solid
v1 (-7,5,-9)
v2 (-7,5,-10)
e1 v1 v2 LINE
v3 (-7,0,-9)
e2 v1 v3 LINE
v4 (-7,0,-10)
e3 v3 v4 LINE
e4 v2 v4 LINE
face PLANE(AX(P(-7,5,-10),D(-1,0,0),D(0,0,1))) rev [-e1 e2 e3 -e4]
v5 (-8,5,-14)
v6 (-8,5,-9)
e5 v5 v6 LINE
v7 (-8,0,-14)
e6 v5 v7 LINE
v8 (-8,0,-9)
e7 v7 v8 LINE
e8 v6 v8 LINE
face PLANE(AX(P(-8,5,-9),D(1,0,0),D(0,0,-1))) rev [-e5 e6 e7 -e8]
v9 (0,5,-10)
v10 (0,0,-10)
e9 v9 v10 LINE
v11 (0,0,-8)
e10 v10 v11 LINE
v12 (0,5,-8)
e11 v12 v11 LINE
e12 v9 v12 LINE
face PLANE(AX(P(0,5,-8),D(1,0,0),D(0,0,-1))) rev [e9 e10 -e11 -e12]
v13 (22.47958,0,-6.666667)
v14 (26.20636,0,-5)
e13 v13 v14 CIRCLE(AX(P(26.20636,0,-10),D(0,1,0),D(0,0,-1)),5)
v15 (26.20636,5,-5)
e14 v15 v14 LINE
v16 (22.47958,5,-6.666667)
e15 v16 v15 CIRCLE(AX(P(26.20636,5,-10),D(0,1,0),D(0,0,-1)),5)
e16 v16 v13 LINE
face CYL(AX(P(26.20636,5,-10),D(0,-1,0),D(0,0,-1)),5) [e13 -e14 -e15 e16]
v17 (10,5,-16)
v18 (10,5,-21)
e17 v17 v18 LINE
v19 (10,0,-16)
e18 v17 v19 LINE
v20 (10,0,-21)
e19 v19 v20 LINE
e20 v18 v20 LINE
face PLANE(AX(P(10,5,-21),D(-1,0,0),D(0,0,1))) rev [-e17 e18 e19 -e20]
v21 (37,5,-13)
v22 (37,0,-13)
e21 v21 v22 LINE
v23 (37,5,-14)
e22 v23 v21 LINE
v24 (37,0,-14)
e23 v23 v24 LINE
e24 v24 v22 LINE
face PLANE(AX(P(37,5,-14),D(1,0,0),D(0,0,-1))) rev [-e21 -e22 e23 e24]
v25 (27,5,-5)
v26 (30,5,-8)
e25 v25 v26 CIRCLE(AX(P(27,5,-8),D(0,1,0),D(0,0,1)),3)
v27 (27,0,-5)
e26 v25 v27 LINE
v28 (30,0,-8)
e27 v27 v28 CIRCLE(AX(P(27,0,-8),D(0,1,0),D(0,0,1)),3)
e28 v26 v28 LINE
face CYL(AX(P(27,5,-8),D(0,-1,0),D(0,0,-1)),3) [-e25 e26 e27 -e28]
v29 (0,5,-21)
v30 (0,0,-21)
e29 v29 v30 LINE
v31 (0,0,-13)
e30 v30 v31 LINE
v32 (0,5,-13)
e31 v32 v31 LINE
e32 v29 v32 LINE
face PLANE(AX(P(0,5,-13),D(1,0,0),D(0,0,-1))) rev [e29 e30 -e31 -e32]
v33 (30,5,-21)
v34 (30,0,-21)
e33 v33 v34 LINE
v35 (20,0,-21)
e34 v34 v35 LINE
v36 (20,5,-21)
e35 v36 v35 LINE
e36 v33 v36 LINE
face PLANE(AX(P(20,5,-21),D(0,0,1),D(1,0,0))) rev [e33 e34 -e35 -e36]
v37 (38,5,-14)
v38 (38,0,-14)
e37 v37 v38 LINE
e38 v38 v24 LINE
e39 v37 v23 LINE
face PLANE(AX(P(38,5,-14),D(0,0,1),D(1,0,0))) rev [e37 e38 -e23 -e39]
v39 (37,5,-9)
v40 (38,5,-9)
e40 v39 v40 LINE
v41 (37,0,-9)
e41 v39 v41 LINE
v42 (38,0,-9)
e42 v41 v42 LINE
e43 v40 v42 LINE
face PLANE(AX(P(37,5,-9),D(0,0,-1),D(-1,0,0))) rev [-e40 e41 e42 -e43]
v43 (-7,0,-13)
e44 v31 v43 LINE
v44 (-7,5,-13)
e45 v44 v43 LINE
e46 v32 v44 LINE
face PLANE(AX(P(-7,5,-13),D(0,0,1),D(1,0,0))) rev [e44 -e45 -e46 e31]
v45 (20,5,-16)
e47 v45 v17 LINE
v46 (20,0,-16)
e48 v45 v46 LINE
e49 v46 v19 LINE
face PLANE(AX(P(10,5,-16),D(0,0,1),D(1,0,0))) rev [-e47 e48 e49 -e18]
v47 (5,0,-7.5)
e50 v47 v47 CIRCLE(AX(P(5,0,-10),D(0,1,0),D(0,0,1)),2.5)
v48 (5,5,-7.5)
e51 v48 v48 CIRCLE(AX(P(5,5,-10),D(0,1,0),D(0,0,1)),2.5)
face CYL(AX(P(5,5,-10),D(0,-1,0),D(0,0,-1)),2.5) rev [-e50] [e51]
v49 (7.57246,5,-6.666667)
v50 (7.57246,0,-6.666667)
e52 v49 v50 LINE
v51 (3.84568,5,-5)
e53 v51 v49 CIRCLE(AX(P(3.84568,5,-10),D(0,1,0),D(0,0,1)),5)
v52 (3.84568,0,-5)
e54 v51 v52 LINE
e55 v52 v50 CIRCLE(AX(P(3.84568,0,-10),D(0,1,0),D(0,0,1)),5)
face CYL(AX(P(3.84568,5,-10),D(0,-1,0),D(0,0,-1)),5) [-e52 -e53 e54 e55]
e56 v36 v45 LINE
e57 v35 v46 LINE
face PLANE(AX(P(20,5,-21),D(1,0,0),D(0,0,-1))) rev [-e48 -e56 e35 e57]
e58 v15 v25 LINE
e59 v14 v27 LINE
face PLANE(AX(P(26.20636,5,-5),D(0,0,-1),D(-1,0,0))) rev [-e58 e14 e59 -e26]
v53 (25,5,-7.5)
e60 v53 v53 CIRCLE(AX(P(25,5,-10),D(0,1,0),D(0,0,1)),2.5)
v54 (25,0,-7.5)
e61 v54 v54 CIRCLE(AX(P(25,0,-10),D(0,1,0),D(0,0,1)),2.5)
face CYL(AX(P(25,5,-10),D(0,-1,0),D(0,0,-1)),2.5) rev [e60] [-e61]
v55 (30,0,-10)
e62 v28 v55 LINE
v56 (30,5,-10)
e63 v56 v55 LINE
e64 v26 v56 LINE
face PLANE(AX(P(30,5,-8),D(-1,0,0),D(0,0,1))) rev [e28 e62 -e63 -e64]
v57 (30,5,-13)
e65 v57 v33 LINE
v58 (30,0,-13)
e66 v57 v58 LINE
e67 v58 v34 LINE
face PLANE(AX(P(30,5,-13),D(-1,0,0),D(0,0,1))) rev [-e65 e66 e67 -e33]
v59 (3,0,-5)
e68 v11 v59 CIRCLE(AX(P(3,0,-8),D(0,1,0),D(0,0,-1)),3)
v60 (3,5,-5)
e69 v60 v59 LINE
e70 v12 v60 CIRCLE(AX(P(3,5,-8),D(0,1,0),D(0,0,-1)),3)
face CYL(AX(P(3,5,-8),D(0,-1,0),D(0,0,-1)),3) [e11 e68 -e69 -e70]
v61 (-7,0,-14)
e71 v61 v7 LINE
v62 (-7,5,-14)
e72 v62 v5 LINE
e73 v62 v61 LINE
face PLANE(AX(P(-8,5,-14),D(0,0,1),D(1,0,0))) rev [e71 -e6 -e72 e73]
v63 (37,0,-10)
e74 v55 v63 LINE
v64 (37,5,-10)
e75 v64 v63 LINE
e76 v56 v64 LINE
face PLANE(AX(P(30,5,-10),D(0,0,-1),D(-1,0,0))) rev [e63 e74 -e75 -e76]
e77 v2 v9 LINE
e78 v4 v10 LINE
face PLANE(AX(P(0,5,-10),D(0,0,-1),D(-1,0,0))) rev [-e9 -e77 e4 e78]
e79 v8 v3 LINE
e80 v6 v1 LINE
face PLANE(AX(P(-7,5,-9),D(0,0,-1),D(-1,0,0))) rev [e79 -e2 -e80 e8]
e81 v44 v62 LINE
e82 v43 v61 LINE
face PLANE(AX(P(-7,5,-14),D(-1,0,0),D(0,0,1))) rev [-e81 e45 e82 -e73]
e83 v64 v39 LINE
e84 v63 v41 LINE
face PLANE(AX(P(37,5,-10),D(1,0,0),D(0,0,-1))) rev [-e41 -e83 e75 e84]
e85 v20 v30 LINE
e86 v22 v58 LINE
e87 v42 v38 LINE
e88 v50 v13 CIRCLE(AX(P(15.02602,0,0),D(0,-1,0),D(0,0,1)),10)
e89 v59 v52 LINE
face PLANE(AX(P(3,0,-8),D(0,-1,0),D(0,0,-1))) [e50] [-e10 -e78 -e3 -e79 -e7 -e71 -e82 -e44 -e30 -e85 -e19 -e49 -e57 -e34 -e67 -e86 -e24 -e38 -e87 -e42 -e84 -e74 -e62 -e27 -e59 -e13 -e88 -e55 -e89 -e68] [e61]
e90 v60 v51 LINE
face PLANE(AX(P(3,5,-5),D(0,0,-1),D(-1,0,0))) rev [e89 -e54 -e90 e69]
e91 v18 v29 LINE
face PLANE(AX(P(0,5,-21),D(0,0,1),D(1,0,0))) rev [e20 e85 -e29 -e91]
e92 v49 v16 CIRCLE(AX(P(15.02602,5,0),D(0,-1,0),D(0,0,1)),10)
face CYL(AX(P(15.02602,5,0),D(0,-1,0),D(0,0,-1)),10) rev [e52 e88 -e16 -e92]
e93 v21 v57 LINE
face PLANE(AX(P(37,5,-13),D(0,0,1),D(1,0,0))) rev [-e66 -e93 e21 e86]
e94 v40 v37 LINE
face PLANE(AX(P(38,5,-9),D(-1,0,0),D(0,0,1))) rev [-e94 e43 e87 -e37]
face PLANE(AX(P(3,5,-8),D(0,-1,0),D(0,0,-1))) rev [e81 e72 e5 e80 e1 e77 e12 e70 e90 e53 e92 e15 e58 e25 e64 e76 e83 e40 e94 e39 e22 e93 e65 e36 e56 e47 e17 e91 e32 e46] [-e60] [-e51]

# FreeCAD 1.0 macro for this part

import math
import FreeCAD as App
import Part
import Sketcher

V = App.Vector
Q = App.Units.Quantity

doc = App.newDocument("Part")
params = doc.addObject("Spreadsheet::Sheet", "Params")
for row, (alias, value) in enumerate([
    ("sketch1_diameter", "5 mm"),
    ("sketch1_radius", "3 mm"),
    ("sketch1_radius2", "5 mm"),
    ("sketch1_radius3", "10 mm"),
    ("sketch1_width", "10 mm"),
    ("pad1_length", "5 mm"),
], start=1):
    params.set(f"A{row}", alias)
    params.set(f"B{row}", "=" + value)
    params.setAlias(f"B{row}", alias)

body = doc.addObject("PartDesign::Body", "Body")

# Sketch on XZ plane
sketch1 = body.newObject("Sketcher::SketchObject", "Sketch")
sketch1.AttachmentSupport = (doc.getObject("XZ_Plane"), [""])
sketch1.MapMode = "FlatFace"
sketch1.addGeometry(Part.LineSegment(V(30, -21, 0), V(20, -21, 0)), False)
sketch1.addGeometry(Part.LineSegment(V(20, -21, 0), V(20, -16, 0)), False)
sketch1.addGeometry(Part.LineSegment(V(20, -16, 0), V(10, -16, 0)), False)
sketch1.addGeometry(Part.LineSegment(V(10, -16, 0), V(10, -21, 0)), False)
sketch1.addGeometry(Part.LineSegment(V(10, -21, 0), V(0, -21, 0)), False)
sketch1.addGeometry(Part.LineSegment(V(0, -21, 0), V(0, -13, 0)), False)
sketch1.addGeometry(Part.LineSegment(V(0, -13, 0), V(-7, -13, 0)), False)
sketch1.addGeometry(Part.LineSegment(V(-7, -13, 0), V(-7, -14, 0)), False)
sketch1.addGeometry(Part.LineSegment(V(-7, -14, 0), V(-8, -14, 0)), False)
sketch1.addGeometry(Part.LineSegment(V(-8, -14, 0), V(-8, -9, 0)), False)
sketch1.addGeometry(Part.LineSegment(V(-8, -9, 0), V(-7, -9, 0)), False)
sketch1.addGeometry(Part.LineSegment(V(-7, -9, 0), V(-7, -10, 0)), False)
sketch1.addGeometry(Part.LineSegment(V(-7, -10, 0), V(0, -10, 0)), False)
sketch1.addGeometry(Part.LineSegment(V(0, -10, 0), V(0, -8, 0)), False)
sketch1.addGeometry(Part.ArcOfCircle(Part.Circle(V(3, -8, 0), V(0, 0, 1), 3), math.radians(90), math.radians(180)), False)
sketch1.addGeometry(Part.LineSegment(V(3, -5, 0), V(3.8, -5, 0)), False)
sketch1.addGeometry(Part.ArcOfCircle(Part.Circle(V(3.8, -10, 0), V(0, 0, 1), 5), math.radians(42), math.radians(90)), False)
sketch1.addGeometry(Part.ArcOfCircle(Part.Circle(V(15, 0, 0), V(0, 0, 1), 10), math.radians(-138), math.radians(-42)), False)
sketch1.addGeometry(Part.ArcOfCircle(Part.Circle(V(26.2, -10, 0), V(0, 0, 1), 5), math.radians(90), math.radians(138)), False)
sketch1.addGeometry(Part.LineSegment(V(26.2, -5, 0), V(27, -5, 0)), False)
sketch1.addGeometry(Part.ArcOfCircle(Part.Circle(V(27, -8, 0), V(0, 0, 1), 3), math.radians(0), math.radians(90)), False)
sketch1.addGeometry(Part.LineSegment(V(30, -8, 0), V(30, -10, 0)), False)
sketch1.addGeometry(Part.LineSegment(V(30, -10, 0), V(37, -10, 0)), False)
sketch1.addGeometry(Part.LineSegment(V(37, -10, 0), V(37, -9, 0)), False)
sketch1.addGeometry(Part.LineSegment(V(37, -9, 0), V(38, -9, 0)), False)
sketch1.addGeometry(Part.LineSegment(V(38, -9, 0), V(38, -14, 0)), False)
sketch1.addGeometry(Part.LineSegment(V(38, -14, 0), V(37, -14, 0)), False)
sketch1.addGeometry(Part.LineSegment(V(37, -14, 0), V(37, -13, 0)), False)
sketch1.addGeometry(Part.LineSegment(V(37, -13, 0), V(30, -13, 0)), False)
sketch1.addGeometry(Part.LineSegment(V(30, -13, 0), V(30, -21, 0)), False)
sketch1.addGeometry(Part.Circle(V(25, -10, 0), V(0, 0, 1), 2.5), False)
sketch1.addGeometry(Part.Circle(V(5, -10, 0), V(0, 0, 1), 2.5), False)
sketch1.addConstraint(Sketcher.Constraint("Coincident", 0, 2, 1, 1))
sketch1.addConstraint(Sketcher.Constraint("Coincident", 1, 2, 2, 1))
sketch1.addConstraint(Sketcher.Constraint("Coincident", 2, 2, 3, 1))
sketch1.addConstraint(Sketcher.Constraint("Coincident", 3, 2, 4, 1))
sketch1.addConstraint(Sketcher.Constraint("Coincident", 4, 2, 5, 1))
sketch1.addConstraint(Sketcher.Constraint("Coincident", 5, 2, 6, 1))
sketch1.addConstraint(Sketcher.Constraint("Coincident", 6, 2, 7, 1))
sketch1.addConstraint(Sketcher.Constraint("Coincident", 7, 2, 8, 1))
sketch1.addConstraint(Sketcher.Constraint("Coincident", 8, 2, 9, 1))
sketch1.addConstraint(Sketcher.Constraint("Coincident", 9, 2, 10, 1))
sketch1.addConstraint(Sketcher.Constraint("Coincident", 10, 2, 11, 1))
sketch1.addConstraint(Sketcher.Constraint("Coincident", 11, 2, 12, 1))
sketch1.addConstraint(Sketcher.Constraint("Coincident", 12, 2, 13, 1))
sketch1.addConstraint(Sketcher.Constraint("Tangent", 13, 2, 14, 2))
sketch1.addConstraint(Sketcher.Constraint("Tangent", 14, 1, 15, 1))
sketch1.addConstraint(Sketcher.Constraint("Tangent", 15, 2, 16, 2))
sketch1.addConstraint(Sketcher.Constraint("Tangent", 16, 1, 17, 1))
sketch1.addConstraint(Sketcher.Constraint("Tangent", 17, 2, 18, 2))
sketch1.addConstraint(Sketcher.Constraint("Tangent", 18, 1, 19, 1))
sketch1.addConstraint(Sketcher.Constraint("Tangent", 19, 2, 20, 2))
sketch1.addConstraint(Sketcher.Constraint("Tangent", 20, 1, 21, 1))
sketch1.addConstraint(Sketcher.Constraint("Coincident", 21, 2, 22, 1))
sketch1.addConstraint(Sketcher.Constraint("Coincident", 22, 2, 23, 1))
sketch1.addConstraint(Sketcher.Constraint("Coincident", 23, 2, 24, 1))
sketch1.addConstraint(Sketcher.Constraint("Coincident", 24, 2, 25, 1))
sketch1.addConstraint(Sketcher.Constraint("Coincident", 25, 2, 26, 1))
sketch1.addConstraint(Sketcher.Constraint("Coincident", 26, 2, 27, 1))
sketch1.addConstraint(Sketcher.Constraint("Coincident", 27, 2, 28, 1))
sketch1.addConstraint(Sketcher.Constraint("Coincident", 28, 2, 29, 1))
sketch1.addConstraint(Sketcher.Constraint("Coincident", 29, 2, 0, 1))
sketch1.addConstraint(Sketcher.Constraint("Horizontal", 0))
sketch1.addConstraint(Sketcher.Constraint("Vertical", 1))
sketch1.addConstraint(Sketcher.Constraint("Horizontal", 2))
sketch1.addConstraint(Sketcher.Constraint("Vertical", 3))
sketch1.addConstraint(Sketcher.Constraint("Horizontal", 4))
sketch1.addConstraint(Sketcher.Constraint("Vertical", 5))
sketch1.addConstraint(Sketcher.Constraint("Horizontal", 6))
sketch1.addConstraint(Sketcher.Constraint("Vertical", 7))
sketch1.addConstraint(Sketcher.Constraint("Horizontal", 8))
sketch1.addConstraint(Sketcher.Constraint("Vertical", 9))
sketch1.addConstraint(Sketcher.Constraint("Horizontal", 10))
sketch1.addConstraint(Sketcher.Constraint("Vertical", 11))
sketch1.addConstraint(Sketcher.Constraint("Horizontal", 12))
sketch1.addConstraint(Sketcher.Constraint("Vertical", 13))
sketch1.addConstraint(Sketcher.Constraint("Horizontal", 15))
sketch1.addConstraint(Sketcher.Constraint("Horizontal", 19))
sketch1.addConstraint(Sketcher.Constraint("Vertical", 21))
sketch1.addConstraint(Sketcher.Constraint("Horizontal", 22))
sketch1.addConstraint(Sketcher.Constraint("Vertical", 23))
sketch1.addConstraint(Sketcher.Constraint("Horizontal", 24))
sketch1.addConstraint(Sketcher.Constraint("Vertical", 25))
sketch1.addConstraint(Sketcher.Constraint("Horizontal", 26))
sketch1.addConstraint(Sketcher.Constraint("Vertical", 27))
sketch1.addConstraint(Sketcher.Constraint("Horizontal", 28))
sketch1.addConstraint(Sketcher.Constraint("Vertical", 29))
sketch1.addConstraint(Sketcher.Constraint("Equal", 16, 18))
sketch1.addConstraint(Sketcher.Constraint("Equal", 14, 20))
sketch1.addConstraint(Sketcher.Constraint("Equal", 30, 31))
sketch1.addConstraint(Sketcher.Constraint("PointOnObject", 17, 3, -1))
sketch1.addConstraint(Sketcher.Constraint("PointOnObject", 4, 2, -2))
sketch1.addConstraint(Sketcher.Constraint("PointOnObject", 12, 2, -2))
sketch1.addConstraint(Sketcher.Constraint("Horizontal", 16, 3, 18, 3))
sketch1.addConstraint(Sketcher.Constraint("Horizontal", 18, 3, 30, 3))
sketch1.addConstraint(Sketcher.Constraint("Horizontal", 30, 3, 31, 3))
sketch1.addConstraint(Sketcher.Constraint("Horizontal", 0, 2, 3, 2))
sketch1.addConstraint(Sketcher.Constraint("Horizontal", 31, 3, 11, 2))
sketch1.addConstraint(Sketcher.Constraint("Horizontal", 12, 2, 21, 2))
sketch1.addConstraint(Sketcher.Constraint("Horizontal", 10, 2, 23, 2))
sketch1.addConstraint(Sketcher.Constraint("Horizontal", 8, 2, 25, 2))
sketch1.addConstraint(Sketcher.Constraint("Horizontal", 6, 2, 27, 2))
sketch1.addConstraint(Sketcher.Constraint("Vertical", 7, 2, 10, 2))
sketch1.addConstraint(Sketcher.Constraint("Vertical", 23, 2, 26, 2))
sketch1.addConstraint(Sketcher.Constraint("Vertical", 21, 2, 28, 2))
sketch1.addConstraint(Sketcher.Constraint("Equal", 0, 2))
sketch1.addConstraint(Sketcher.Constraint("Equal", 2, 4))
sketch1.addConstraint(Sketcher.Constraint("Equal", 12, 22))
sketch1.addConstraint(Sketcher.Constraint("Equal", 10, 24))
sketch1.addConstraint(Sketcher.Constraint("Equal", 26, 7))
sketch1.addConstraint(Sketcher.Constraint("Equal", 3, 9))
sketch1.addConstraint(Sketcher.Constraint("Equal", 7, 11))
sketch1.addConstraint(Sketcher.Constraint("Diameter", 30, Q("5 mm")))
sketch1.addConstraint(Sketcher.Constraint("Radius", 14, Q("3 mm")))
sketch1.addConstraint(Sketcher.Constraint("Radius", 16, Q("5 mm")))
sketch1.addConstraint(Sketcher.Constraint("Radius", 17, Q("10 mm")))
sketch1.addConstraint(Sketcher.Constraint("DistanceX", 0, 2, 0, 1, Q("10 mm")))
sketch1.addConstraint(Sketcher.Constraint("DistanceX", 6, 2, 6, 1, Q("7 mm")))
sketch1.addConstraint(Sketcher.Constraint("DistanceX", 8, 2, 8, 1, Q("1 mm")))
sketch1.addConstraint(Sketcher.Constraint("DistanceY", 1, 1, 1, 2, Q("5 mm")))
sketch1.addConstraint(Sketcher.Constraint("DistanceY", 5, 1, 5, 2, Q("8 mm")))
sketch1.addConstraint(Sketcher.Constraint("DistanceY", 14, 3, -1, 1, Q("8 mm")))
sketch1.addConstraint(Sketcher.Constraint("DistanceX", -1, 1, 30, 3, Q("25 mm")))
sketch1.addConstraint(Sketcher.Constraint("DistanceX", -1, 1, 31, 3, Q("5 mm")))
sketch1.addConstraint(Sketcher.Constraint("DistanceX", 15, 1, 15, 2, Q("0.84568 mm")))
sketch1.setExpression("Constraints[80]", "Params.sketch1_diameter")
sketch1.setExpression("Constraints[81]", "Params.sketch1_radius")
sketch1.setExpression("Constraints[82]", "Params.sketch1_radius2")
sketch1.setExpression("Constraints[83]", "Params.sketch1_radius3")
sketch1.setExpression("Constraints[84]", "Params.sketch1_width")
pad1 = body.newObject("PartDesign::Pad", "Pad")
pad1.Profile = sketch1
pad1.setExpression("Length", "Params.pad1_length")
pad1.Reversed = True

doc.recompute()
